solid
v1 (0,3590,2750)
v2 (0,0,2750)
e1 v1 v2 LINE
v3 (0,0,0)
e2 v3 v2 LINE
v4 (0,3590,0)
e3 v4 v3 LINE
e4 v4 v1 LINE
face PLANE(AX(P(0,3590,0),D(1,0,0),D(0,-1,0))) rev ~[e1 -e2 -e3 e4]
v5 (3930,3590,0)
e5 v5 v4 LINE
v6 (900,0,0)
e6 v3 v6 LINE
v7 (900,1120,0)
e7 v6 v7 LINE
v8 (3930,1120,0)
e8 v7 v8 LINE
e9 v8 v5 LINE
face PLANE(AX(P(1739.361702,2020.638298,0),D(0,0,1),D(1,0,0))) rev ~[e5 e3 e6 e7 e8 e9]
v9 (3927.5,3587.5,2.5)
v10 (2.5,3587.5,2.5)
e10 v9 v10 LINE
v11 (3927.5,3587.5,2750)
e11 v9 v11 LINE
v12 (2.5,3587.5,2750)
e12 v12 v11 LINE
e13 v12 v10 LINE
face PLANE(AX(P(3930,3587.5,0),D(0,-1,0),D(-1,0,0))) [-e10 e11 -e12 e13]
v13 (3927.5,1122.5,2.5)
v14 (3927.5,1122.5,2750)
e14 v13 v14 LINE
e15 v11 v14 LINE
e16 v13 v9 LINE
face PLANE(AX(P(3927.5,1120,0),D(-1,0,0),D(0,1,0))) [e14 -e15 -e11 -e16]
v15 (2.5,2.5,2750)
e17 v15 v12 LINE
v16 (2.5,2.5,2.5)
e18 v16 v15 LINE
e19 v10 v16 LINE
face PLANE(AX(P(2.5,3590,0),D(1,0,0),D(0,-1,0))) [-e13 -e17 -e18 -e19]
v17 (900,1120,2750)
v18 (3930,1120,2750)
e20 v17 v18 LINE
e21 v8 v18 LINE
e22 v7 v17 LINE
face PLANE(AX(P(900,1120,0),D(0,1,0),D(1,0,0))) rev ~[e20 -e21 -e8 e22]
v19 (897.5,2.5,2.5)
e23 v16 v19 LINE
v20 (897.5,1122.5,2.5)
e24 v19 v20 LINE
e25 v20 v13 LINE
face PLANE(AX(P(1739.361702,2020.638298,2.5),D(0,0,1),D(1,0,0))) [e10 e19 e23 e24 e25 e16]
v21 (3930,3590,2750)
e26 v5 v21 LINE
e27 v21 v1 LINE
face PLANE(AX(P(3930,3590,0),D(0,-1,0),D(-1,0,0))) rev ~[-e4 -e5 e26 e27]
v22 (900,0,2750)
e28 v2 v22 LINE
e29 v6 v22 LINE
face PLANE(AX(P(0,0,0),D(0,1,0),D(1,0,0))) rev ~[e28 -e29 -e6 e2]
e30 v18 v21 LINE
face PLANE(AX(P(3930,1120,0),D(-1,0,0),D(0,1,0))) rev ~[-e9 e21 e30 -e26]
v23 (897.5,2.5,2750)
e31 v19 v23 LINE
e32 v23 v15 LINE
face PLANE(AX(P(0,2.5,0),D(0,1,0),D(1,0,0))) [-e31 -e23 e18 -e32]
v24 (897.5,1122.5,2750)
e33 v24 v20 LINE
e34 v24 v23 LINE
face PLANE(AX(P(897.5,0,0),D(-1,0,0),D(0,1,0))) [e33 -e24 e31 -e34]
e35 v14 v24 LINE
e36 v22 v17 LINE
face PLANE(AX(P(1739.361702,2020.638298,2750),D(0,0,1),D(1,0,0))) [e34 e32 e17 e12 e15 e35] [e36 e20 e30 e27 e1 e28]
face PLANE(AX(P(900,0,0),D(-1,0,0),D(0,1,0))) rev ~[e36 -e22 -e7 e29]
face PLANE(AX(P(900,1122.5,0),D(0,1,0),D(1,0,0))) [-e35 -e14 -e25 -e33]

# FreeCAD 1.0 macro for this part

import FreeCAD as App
import Part
import Sketcher
from FreeCAD import Vector
Q = App.Units.Quantity


def faces_at(feature, points):
    """Names of the faces that lie closest to the given points."""
    faces = feature.Shape.Faces
    near = lambda p: min(range(len(faces)), key=lambda i: faces[i].distToShape(Part.Vertex(*p))[0])
    return sorted({f"Face{near(p) + 1}" for p in points})


def add_polygon(sketch, points):
    """Adds a closed chain of lines whose ends are joined by coincident constraints."""
    first, n = sketch.GeometryCount, len(points)
    for a, b in zip(points, points[1:] + points[:1]):
        sketch.addGeometry(Part.LineSegment(App.Vector(*a, 0), App.Vector(*b, 0)), False)
    for i in range(n):
        sketch.addConstraint(Sketcher.Constraint("Coincident", first + i, 2, first + (i + 1) % n, 1))

doc = App.newDocument("Part")
params = doc.addObject("Spreadsheet::Sheet", "Params")
for row, (alias, value) in enumerate([
    ("sketch1_width", "900 mm"),
    ("sketch1_width2", "3030 mm"),
    ("sketch1_height", "3590 mm"),
    ("sketch1_height2", "1120 mm"),
    ("pad1_length", "2750 mm"),
    ("thickness_wall", "2.5 mm"),
], start=1):
    params.set(f"A{row}", alias)
    params.set(f"B{row}", "=" + value)
    params.setAlias(f"B{row}", alias)

body = doc.addObject("PartDesign::Body", "Body")

# Sketch on XY plane
sketch1 = doc.addObject("Sketcher::SketchObject", "Sketch")
body.addObject(sketch1)
sketch1.AttachmentSupport = (doc.XY_Plane, [""])
sketch1.MapMode = "FlatFace"
add_polygon(sketch1, [(0, 3590), (0, 0), (900, 0), (900, 1120), (3930, 1120), (3930, 3590)])  # lines 0-5
sketch1.addConstraint(Sketcher.Constraint("Vertical", 0))
sketch1.addConstraint(Sketcher.Constraint("Horizontal", 1))
sketch1.addConstraint(Sketcher.Constraint("Vertical", 2))
sketch1.addConstraint(Sketcher.Constraint("Horizontal", 3))
sketch1.addConstraint(Sketcher.Constraint("Vertical", 4))
sketch1.addConstraint(Sketcher.Constraint("Horizontal", 5))
sketch1.addConstraint(Sketcher.Constraint("Coincident", 0, 2, -1, 1))
sketch1.addConstraint(Sketcher.Constraint("DistanceX", 1, 1, 1, 2, Q("900 mm")))
sketch1.addConstraint(Sketcher.Constraint("DistanceX", 3, 1, 3, 2, Q("3030 mm")))
sketch1.addConstraint(Sketcher.Constraint("DistanceY", 0, 2, 0, 1, Q("3590 mm")))
sketch1.addConstraint(Sketcher.Constraint("DistanceY", 2, 1, 2, 2, Q("1120 mm")))
sketch1.setExpression("Constraints[13]", "Params.sketch1_width")
sketch1.setExpression("Constraints[14]", "Params.sketch1_width2")
sketch1.setExpression("Constraints[15]", "Params.sketch1_height")
sketch1.setExpression("Constraints[16]", "Params.sketch1_height2")
pad1 = doc.addObject("PartDesign::Pad", "Pad")
body.addObject(pad1)
pad1.Profile = sketch1
pad1.setExpression("Length", "Params.pad1_length")
doc.recompute()

thickness = doc.addObject("PartDesign::Thickness", "Thickness")
body.addObject(thickness)
thickness.Base = (pad1, faces_at(pad1, [(1965, 1795, 2750)]))
thickness.setExpression("Value", "Params.thickness_wall")
thickness.Reversed = True
thickness.Join = "Intersection"

doc.recompute()
